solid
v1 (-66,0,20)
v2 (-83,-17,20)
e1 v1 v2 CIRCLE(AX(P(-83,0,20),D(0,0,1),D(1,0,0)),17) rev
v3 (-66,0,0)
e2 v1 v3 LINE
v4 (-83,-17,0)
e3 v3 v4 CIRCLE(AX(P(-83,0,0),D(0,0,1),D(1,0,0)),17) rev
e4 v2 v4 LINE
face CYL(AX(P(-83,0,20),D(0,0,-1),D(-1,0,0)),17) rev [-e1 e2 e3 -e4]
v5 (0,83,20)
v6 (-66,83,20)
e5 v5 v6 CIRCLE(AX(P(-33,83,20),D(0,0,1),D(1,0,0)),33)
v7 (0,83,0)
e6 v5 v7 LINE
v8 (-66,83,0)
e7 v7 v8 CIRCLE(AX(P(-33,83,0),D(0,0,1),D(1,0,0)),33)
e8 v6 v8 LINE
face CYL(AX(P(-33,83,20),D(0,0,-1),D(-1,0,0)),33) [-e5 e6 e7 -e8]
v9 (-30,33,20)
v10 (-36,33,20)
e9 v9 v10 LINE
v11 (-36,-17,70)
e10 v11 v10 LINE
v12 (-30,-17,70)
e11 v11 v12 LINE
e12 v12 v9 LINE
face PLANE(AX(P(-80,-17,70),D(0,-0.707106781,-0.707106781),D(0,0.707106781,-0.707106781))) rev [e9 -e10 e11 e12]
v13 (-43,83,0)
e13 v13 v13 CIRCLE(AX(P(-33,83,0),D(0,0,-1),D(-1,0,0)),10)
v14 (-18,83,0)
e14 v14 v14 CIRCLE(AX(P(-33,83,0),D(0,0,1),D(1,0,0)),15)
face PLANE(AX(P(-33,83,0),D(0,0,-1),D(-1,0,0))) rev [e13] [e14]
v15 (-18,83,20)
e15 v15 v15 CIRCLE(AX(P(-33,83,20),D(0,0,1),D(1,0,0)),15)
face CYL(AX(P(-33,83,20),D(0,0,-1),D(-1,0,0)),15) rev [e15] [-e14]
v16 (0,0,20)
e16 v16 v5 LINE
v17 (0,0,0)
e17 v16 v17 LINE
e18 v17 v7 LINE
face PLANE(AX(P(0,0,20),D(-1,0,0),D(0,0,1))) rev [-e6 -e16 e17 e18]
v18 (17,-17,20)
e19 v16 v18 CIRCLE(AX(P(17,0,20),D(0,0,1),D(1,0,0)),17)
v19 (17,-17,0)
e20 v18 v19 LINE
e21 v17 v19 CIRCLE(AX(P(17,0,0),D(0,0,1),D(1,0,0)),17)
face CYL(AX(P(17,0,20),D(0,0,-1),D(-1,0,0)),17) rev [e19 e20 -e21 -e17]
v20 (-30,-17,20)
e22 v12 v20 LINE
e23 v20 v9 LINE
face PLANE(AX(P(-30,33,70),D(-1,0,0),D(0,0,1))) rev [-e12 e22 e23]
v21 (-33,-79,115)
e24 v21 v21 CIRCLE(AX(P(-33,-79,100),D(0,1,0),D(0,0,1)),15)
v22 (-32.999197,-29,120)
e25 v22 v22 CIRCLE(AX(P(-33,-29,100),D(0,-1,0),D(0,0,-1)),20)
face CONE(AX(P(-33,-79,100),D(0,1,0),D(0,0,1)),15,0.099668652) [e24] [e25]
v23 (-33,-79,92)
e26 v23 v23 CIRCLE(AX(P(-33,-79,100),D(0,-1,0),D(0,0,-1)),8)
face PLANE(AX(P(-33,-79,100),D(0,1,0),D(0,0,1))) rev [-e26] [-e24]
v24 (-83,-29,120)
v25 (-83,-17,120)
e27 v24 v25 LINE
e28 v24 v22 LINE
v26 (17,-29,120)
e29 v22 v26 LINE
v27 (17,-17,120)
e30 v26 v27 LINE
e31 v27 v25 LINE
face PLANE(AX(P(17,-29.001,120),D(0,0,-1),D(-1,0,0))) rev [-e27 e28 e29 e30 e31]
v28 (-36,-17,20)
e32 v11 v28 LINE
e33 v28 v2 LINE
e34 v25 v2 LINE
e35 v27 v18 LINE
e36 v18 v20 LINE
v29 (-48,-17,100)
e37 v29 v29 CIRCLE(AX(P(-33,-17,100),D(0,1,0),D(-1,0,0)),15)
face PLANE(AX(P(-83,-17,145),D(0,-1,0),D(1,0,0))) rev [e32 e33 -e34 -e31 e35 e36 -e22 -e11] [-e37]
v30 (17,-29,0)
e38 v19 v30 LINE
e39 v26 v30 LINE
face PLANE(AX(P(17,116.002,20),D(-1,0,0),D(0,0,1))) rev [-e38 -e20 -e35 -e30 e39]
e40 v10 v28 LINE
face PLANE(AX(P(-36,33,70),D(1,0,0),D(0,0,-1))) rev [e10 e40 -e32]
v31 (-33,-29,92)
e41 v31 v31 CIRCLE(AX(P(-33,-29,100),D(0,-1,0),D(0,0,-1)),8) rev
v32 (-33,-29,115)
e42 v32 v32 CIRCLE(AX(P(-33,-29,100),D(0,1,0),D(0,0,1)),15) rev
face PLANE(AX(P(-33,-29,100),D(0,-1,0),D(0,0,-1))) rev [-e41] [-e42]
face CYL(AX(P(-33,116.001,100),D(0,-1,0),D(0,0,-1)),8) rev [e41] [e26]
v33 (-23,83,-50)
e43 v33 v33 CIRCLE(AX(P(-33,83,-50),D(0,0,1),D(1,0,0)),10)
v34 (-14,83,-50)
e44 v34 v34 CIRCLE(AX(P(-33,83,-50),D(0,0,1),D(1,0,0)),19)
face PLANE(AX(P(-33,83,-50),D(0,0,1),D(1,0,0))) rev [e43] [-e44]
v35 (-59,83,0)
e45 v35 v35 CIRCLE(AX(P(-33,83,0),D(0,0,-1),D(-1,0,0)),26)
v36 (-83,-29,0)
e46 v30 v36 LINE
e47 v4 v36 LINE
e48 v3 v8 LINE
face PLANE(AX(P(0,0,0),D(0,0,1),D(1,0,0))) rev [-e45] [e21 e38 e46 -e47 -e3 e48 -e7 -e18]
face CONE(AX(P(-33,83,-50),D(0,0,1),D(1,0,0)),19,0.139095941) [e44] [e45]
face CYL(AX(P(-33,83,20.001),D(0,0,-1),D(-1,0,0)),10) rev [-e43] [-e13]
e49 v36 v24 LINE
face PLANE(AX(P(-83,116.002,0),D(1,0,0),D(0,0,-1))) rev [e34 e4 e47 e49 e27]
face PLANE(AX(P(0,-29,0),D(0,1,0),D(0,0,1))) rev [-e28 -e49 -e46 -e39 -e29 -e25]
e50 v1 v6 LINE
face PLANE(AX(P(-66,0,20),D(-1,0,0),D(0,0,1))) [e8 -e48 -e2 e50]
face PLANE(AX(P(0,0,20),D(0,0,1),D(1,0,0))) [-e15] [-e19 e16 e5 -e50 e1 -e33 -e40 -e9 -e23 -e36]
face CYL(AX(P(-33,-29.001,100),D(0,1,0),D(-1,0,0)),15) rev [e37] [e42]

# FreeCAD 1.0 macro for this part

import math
import FreeCAD as App
import Part
import Sketcher
from FreeCAD import Vector


def add_polygon(sketch, points):
    """Adds a closed chain of lines whose ends are joined by coincident constraints."""
    first, n = sketch.GeometryCount, len(points)
    for a, b in zip(points, points[1:] + points[:1]):
        sketch.addGeometry(Part.LineSegment(App.Vector(*a, 0), App.Vector(*b, 0)), False)
    for i in range(n):
        sketch.addConstraint(Sketcher.Constraint("Coincident", first + i, 2, first + (i + 1) % n, 1))

doc = App.newDocument("Part")
params = doc.addObject("Spreadsheet::Sheet", "Params")
for row, (alias, value) in enumerate([
    ("sketch1_diameter", "30 mm"),
    ("sketch1_radius", "33 mm"),
    ("sketch1_radius2", "17 mm"),
    ("sketch1_height", "83 mm"),
    ("pad1_length", "20 mm"),
    ("sketch2_diameter", "52 mm"),
    ("sketch3_diameter", "38 mm"),
    ("sketch4_diameter", "20 mm"),
    ("sketch5_width", "100 mm"),
    ("sketch5_height", "20 mm"),
    ("sketch6_width", "100 mm"),
    ("sketch6_height", "12 mm"),
    ("pad3_length", "125 mm"),
    ("sketch7_width", "6 mm"),
    ("sketch7_height", "50 mm"),
    ("pad4_length", "50 mm"),
    ("sketch8_width", "50 mm"),
    ("pocket2_length", "50 mm"),
    ("sketch9_diameter", "30 mm"),
    ("sketch10_width", "100 mm"),
    ("sketch10_height", "25 mm"),
    ("sketch11_diameter", "40 mm"),
    ("sketch12_diameter", "30 mm"),
    ("sketch13_diameter", "16 mm"),
], start=1):
    params.set(f"A{row}", alias)
    params.set(f"B{row}", "=" + value)
    params.setAlias(f"B{row}", alias)

body = doc.addObject("PartDesign::Body", "Body")

# Sketch on XY plane
sketch1 = doc.addObject("Sketcher::SketchObject", "Sketch")
body.addObject(sketch1)
sketch1.AttachmentSupport = (doc.XY_Plane, [""])
sketch1.MapMode = "FlatFace"
sketch1.addGeometry(Part.LineSegment(Vector(0, 0, 0), Vector(0, 83, 0)), False)
sketch1.addGeometry(Part.ArcOfCircle(Part.Circle(Vector(-33, 83, 0), Vector(0, 0, 1), 33), math.radians(0), math.radians(180)), False)
sketch1.addGeometry(Part.LineSegment(Vector(-66, 83, 0), Vector(-66, 0, 0)), False)
sketch1.addGeometry(Part.ArcOfCircle(Part.Circle(Vector(-83, 0, 0), Vector(0, 0, 1), 17), math.radians(-90), math.radians(0)), False)
sketch1.addGeometry(Part.LineSegment(Vector(-83, -17, 0), Vector(17, -17, 0)), False)
sketch1.addGeometry(Part.ArcOfCircle(Part.Circle(Vector(17, 0, 0), Vector(0, 0, 1), 17), math.radians(-180), math.radians(-90)), False)
sketch1.addGeometry(Part.Circle(Vector(-33, 83, 0), Vector(0, 0, 1), 15), False)
sketch1.addConstraint(Sketcher.Constraint("Tangent", 0, 2, 1, 1))
sketch1.addConstraint(Sketcher.Constraint("Tangent", 1, 2, 2, 1))
sketch1.addConstraint(Sketcher.Constraint("Tangent", 2, 2, 3, 2))
sketch1.addConstraint(Sketcher.Constraint("Tangent", 3, 1, 4, 1))
sketch1.addConstraint(Sketcher.Constraint("Tangent", 4, 2, 5, 2))
sketch1.addConstraint(Sketcher.Constraint("Tangent", 5, 1, 0, 1))
sketch1.addConstraint(Sketcher.Constraint("Vertical", 0))
sketch1.addConstraint(Sketcher.Constraint("Vertical", 2))
sketch1.addConstraint(Sketcher.Constraint("Horizontal", 4))
sketch1.addConstraint(Sketcher.Constraint("Coincident", 5, 1, -1, 1))
sketch1.addConstraint(Sketcher.Constraint("Coincident", 6, 3, 1, 3))
sketch1.addConstraint(Sketcher.Constraint("Equal", 3, 5))
sketch1.addConstraint(Sketcher.Constraint("Diameter", 6, 30.0))
sketch1.addConstraint(Sketcher.Constraint("Radius", 1, 33.0))
sketch1.addConstraint(Sketcher.Constraint("Radius", 3, 17.0))
sketch1.addConstraint(Sketcher.Constraint("DistanceY", 0, 1, 0, 2, 83.0))
sketch1.setExpression("Constraints[12]", "Params.sketch1_diameter")
sketch1.setExpression("Constraints[13]", "Params.sketch1_radius")
sketch1.setExpression("Constraints[14]", "Params.sketch1_radius2")
sketch1.setExpression("Constraints[15]", "Params.sketch1_height")
pad1 = doc.addObject("PartDesign::Pad", "Pad")
body.addObject(pad1)
pad1.Profile = sketch1
pad1.setExpression("Length", "Params.pad1_length")

# Sketch on XY plane
sketch2 = doc.addObject("Sketcher::SketchObject", "Sketch001")
body.addObject(sketch2)
sketch2.AttachmentSupport = (doc.XY_Plane, [""])
sketch2.MapMode = "FlatFace"
sketch2.addGeometry(Part.Circle(Vector(-33, 83, 0), Vector(0, 0, 1), 26), False)
sketch2.addConstraint(Sketcher.Constraint("Diameter", 0, 52.0))
sketch2.addConstraint(Sketcher.Constraint("DistanceX", 0, 3, -1, 1, 33.0))
sketch2.addConstraint(Sketcher.Constraint("DistanceY", -1, 1, 0, 3, 83.0))
sketch2.setExpression("Constraints[0]", "Params.sketch2_diameter")

# Sketch on XY plane
sketch3 = doc.addObject("Sketcher::SketchObject", "Sketch002")
body.addObject(sketch3)
sketch3.AttachmentSupport = (doc.XY_Plane, [""])
sketch3.MapMode = "FlatFace"
sketch3.AttachmentOffset = App.Placement(Vector(0, 0, -50), App.Rotation())
sketch3.addGeometry(Part.Circle(Vector(-33, 83, 0), Vector(0, 0, 1), 19), False)
sketch3.addConstraint(Sketcher.Constraint("Diameter", 0, 38.0))
sketch3.addConstraint(Sketcher.Constraint("DistanceX", 0, 3, -1, 1, 33.0))
sketch3.addConstraint(Sketcher.Constraint("DistanceY", -1, 1, 0, 3, 83.0))
sketch3.setExpression("Constraints[0]", "Params.sketch3_diameter")

additiveloft = doc.addObject("PartDesign::AdditiveLoft", "AdditiveLoft")
body.addObject(additiveloft)
additiveloft.Profile = sketch2
additiveloft.Sections = [sketch3]

# Sketch on XY plane
sketch4 = doc.addObject("Sketcher::SketchObject", "Sketch003")
body.addObject(sketch4)
sketch4.AttachmentSupport = (doc.XY_Plane, [""])
sketch4.MapMode = "FlatFace"
sketch4.AttachmentOffset = App.Placement(Vector(0, 0, -50), App.Rotation())
sketch4.addGeometry(Part.Circle(Vector(-33, 83, 0), Vector(0, 0, 1), 10), False)
sketch4.addConstraint(Sketcher.Constraint("Diameter", 0, 20.0))
sketch4.addConstraint(Sketcher.Constraint("DistanceX", 0, 3, -1, 1, 33.0))
sketch4.addConstraint(Sketcher.Constraint("DistanceY", -1, 1, 0, 3, 83.0))
sketch4.setExpression("Constraints[0]", "Params.sketch4_diameter")
pocket1 = doc.addObject("PartDesign::Pocket", "Pocket")
body.addObject(pocket1)
pocket1.Profile = sketch4
pocket1.Type = "UpToFirst"
pocket1.Reversed = True

# Sketch on XZ plane
sketch5 = doc.addObject("Sketcher::SketchObject", "Sketch004")
body.addObject(sketch5)
sketch5.AttachmentSupport = (doc.XZ_Plane, [""])
sketch5.MapMode = "FlatFace"
sketch5.AttachmentOffset = App.Placement(Vector(0, 0, 29), App.Rotation())
add_polygon(sketch5, [(-83, 0), (-83, 20), (17, 20), (17, 0)])  # lines 0-3
sketch5.addConstraint(Sketcher.Constraint("Vertical", 0))
sketch5.addConstraint(Sketcher.Constraint("Horizontal", 1))
sketch5.addConstraint(Sketcher.Constraint("Vertical", 2))
sketch5.addConstraint(Sketcher.Constraint("Horizontal", 3))
sketch5.addConstraint(Sketcher.Constraint("PointOnObject", 2, 2, -1))
sketch5.addConstraint(Sketcher.Constraint("DistanceX", 1, 1, 1, 2, 100.0))
sketch5.addConstraint(Sketcher.Constraint("DistanceY", 0, 1, 0, 2, 20.0))
sketch5.addConstraint(Sketcher.Constraint("DistanceX", 0, 2, -1, 1, 83.0))
sketch5.setExpression("Constraints[9]", "Params.sketch5_width")
sketch5.setExpression("Constraints[10]", "Params.sketch5_height")
pad2 = doc.addObject("PartDesign::Pad", "Pad001")
body.addObject(pad2)
pad2.Profile = sketch5
pad2.Type = "UpToFirst"
pad2.Reversed = True

# Sketch on XY plane
sketch6 = doc.addObject("Sketcher::SketchObject", "Sketch005")
body.addObject(sketch6)
sketch6.AttachmentSupport = (doc.XY_Plane, [""])
sketch6.MapMode = "FlatFace"
sketch6.AttachmentOffset = App.Placement(Vector(0, 0, 20), App.Rotation())
add_polygon(sketch6, [(-83, -17), (-83, -29), (17, -29), (17, -17)])  # lines 0-3
sketch6.addConstraint(Sketcher.Constraint("Vertical", 0))
sketch6.addConstraint(Sketcher.Constraint("Horizontal", 1))
sketch6.addConstraint(Sketcher.Constraint("Vertical", 2))
sketch6.addConstraint(Sketcher.Constraint("Horizontal", 3))
sketch6.addConstraint(Sketcher.Constraint("DistanceX", 1, 1, 1, 2, 100.0))
sketch6.addConstraint(Sketcher.Constraint("DistanceY", 0, 2, 0, 1, 12.0))
sketch6.addConstraint(Sketcher.Constraint("DistanceX", 0, 2, -1, 1, 83.0))
sketch6.addConstraint(Sketcher.Constraint("DistanceY", 0, 2, -1, 1, 29.0))
sketch6.setExpression("Constraints[8]", "Params.sketch6_width")
sketch6.setExpression("Constraints[9]", "Params.sketch6_height")
pad3 = doc.addObject("PartDesign::Pad", "Pad002")
body.addObject(pad3)
pad3.Profile = sketch6
pad3.setExpression("Length", "Params.pad3_length")

# Sketch on XY plane
sketch7 = doc.addObject("Sketcher::SketchObject", "Sketch006")
body.addObject(sketch7)
sketch7.AttachmentSupport = (doc.XY_Plane, [""])
sketch7.MapMode = "FlatFace"
sketch7.AttachmentOffset = App.Placement(Vector(0, 0, 20), App.Rotation())
add_polygon(sketch7, [(-36, 33), (-36, -17), (-30, -17), (-30, 33)])  # lines 0-3
sketch7.addConstraint(Sketcher.Constraint("Vertical", 0))
sketch7.addConstraint(Sketcher.Constraint("Horizontal", 1))
sketch7.addConstraint(Sketcher.Constraint("Vertical", 2))
sketch7.addConstraint(Sketcher.Constraint("Horizontal", 3))
sketch7.addConstraint(Sketcher.Constraint("DistanceX", 1, 1, 1, 2, 6.0))
sketch7.addConstraint(Sketcher.Constraint("DistanceY", 0, 2, 0, 1, 50.0))
sketch7.addConstraint(Sketcher.Constraint("DistanceX", 0, 2, -1, 1, 36.0))
sketch7.addConstraint(Sketcher.Constraint("DistanceY", 0, 2, -1, 1, 17.0))
sketch7.setExpression("Constraints[8]", "Params.sketch7_width")
sketch7.setExpression("Constraints[9]", "Params.sketch7_height")
pad4 = doc.addObject("PartDesign::Pad", "Pad003")
body.addObject(pad4)
pad4.Profile = sketch7
pad4.setExpression("Length", "Params.pad4_length")

# Sketch on YZ plane
sketch8 = doc.addObject("Sketcher::SketchObject", "Sketch007")
body.addObject(sketch8)
sketch8.AttachmentSupport = (doc.YZ_Plane, [""])
sketch8.MapMode = "FlatFace"
sketch8.AttachmentOffset = App.Placement(Vector(0, 0, -30), App.Rotation())
add_polygon(sketch8, [(-17, 70), (33, 20), (33, 70)])  # lines 0-2
sketch8.addConstraint(Sketcher.Constraint("Vertical", 1))
sketch8.addConstraint(Sketcher.Constraint("Horizontal", 2))
sketch8.addConstraint(Sketcher.Constraint("Equal", 2, 1))
sketch8.addConstraint(Sketcher.Constraint("DistanceX", 2, 2, 2, 1, 50.0))
sketch8.addConstraint(Sketcher.Constraint("DistanceX", -1, 1, 0, 2, 33.0))
sketch8.addConstraint(Sketcher.Constraint("DistanceY", -1, 1, 0, 2, 20.0))
sketch8.setExpression("Constraints[6]", "Params.sketch8_width")
pocket2 = doc.addObject("PartDesign::Pocket", "Pocket001")
body.addObject(pocket2)
pocket2.Profile = sketch8
pocket2.setExpression("Length", "Params.pocket2_length")

# Sketch on XZ plane
sketch9 = doc.addObject("Sketcher::SketchObject", "Sketch008")
body.addObject(sketch9)
sketch9.AttachmentSupport = (doc.XZ_Plane, [""])
sketch9.MapMode = "FlatFace"
sketch9.AttachmentOffset = App.Placement(Vector(0, 0, 17), App.Rotation())
sketch9.addGeometry(Part.Circle(Vector(-33, 100, 0), Vector(0, 0, 1), 15), False)
sketch9.addConstraint(Sketcher.Constraint("Diameter", 0, 30.0))
sketch9.addConstraint(Sketcher.Constraint("DistanceX", 0, 3, -1, 1, 33.0))
sketch9.addConstraint(Sketcher.Constraint("DistanceY", -1, 1, 0, 3, 100.0))
sketch9.setExpression("Constraints[0]", "Params.sketch9_diameter")
pocket3 = doc.addObject("PartDesign::Pocket", "Pocket002")
body.addObject(pocket3)
pocket3.Profile = sketch9
pocket3.Type = "UpToFirst"
pocket3.Reversed = True

# Sketch on XZ plane
sketch10 = doc.addObject("Sketcher::SketchObject", "Sketch009")
body.addObject(sketch10)
sketch10.AttachmentSupport = (doc.XZ_Plane, [""])
sketch10.MapMode = "FlatFace"
sketch10.AttachmentOffset = App.Placement(Vector(0, 0, 17), App.Rotation())
add_polygon(sketch10, [(-83, 120), (-83, 145), (17, 145), (17, 120)])  # lines 0-3
sketch10.addConstraint(Sketcher.Constraint("Vertical", 0))
sketch10.addConstraint(Sketcher.Constraint("Horizontal", 1))
sketch10.addConstraint(Sketcher.Constraint("Vertical", 2))
sketch10.addConstraint(Sketcher.Constraint("Horizontal", 3))
sketch10.addConstraint(Sketcher.Constraint("DistanceX", 1, 1, 1, 2, 100.0))
sketch10.addConstraint(Sketcher.Constraint("DistanceY", 0, 1, 0, 2, 25.0))
sketch10.addConstraint(Sketcher.Constraint("DistanceX", 0, 2, -1, 1, 83.0))
sketch10.addConstraint(Sketcher.Constraint("DistanceY", -1, 1, 0, 2, 145.0))
sketch10.setExpression("Constraints[8]", "Params.sketch10_width")
sketch10.setExpression("Constraints[9]", "Params.sketch10_height")
pocket4 = doc.addObject("PartDesign::Pocket", "Pocket003")
body.addObject(pocket4)
pocket4.Profile = sketch10
pocket4.Type = "UpToFirst"
pocket4.Reversed = True

# Sketch on XZ plane
sketch11 = doc.addObject("Sketcher::SketchObject", "Sketch010")
body.addObject(sketch11)
sketch11.AttachmentSupport = (doc.XZ_Plane, [""])
sketch11.MapMode = "FlatFace"
sketch11.AttachmentOffset = App.Placement(Vector(0, 0, 29), App.Rotation())
sketch11.addGeometry(Part.Circle(Vector(-33, 100, 0), Vector(0, 0, 1), 20), False)
sketch11.addConstraint(Sketcher.Constraint("Diameter", 0, 40.0))
sketch11.addConstraint(Sketcher.Constraint("DistanceX", 0, 3, -1, 1, 33.0))
sketch11.addConstraint(Sketcher.Constraint("DistanceY", -1, 1, 0, 3, 100.0))
sketch11.setExpression("Constraints[0]", "Params.sketch11_diameter")

# Sketch on XZ plane
sketch12 = doc.addObject("Sketcher::SketchObject", "Sketch011")
body.addObject(sketch12)
sketch12.AttachmentSupport = (doc.XZ_Plane, [""])
sketch12.MapMode = "FlatFace"
sketch12.AttachmentOffset = App.Placement(Vector(0, 0, 79), App.Rotation())
sketch12.addGeometry(Part.Circle(Vector(-33, 100, 0), Vector(0, 0, 1), 15), False)
sketch12.addConstraint(Sketcher.Constraint("Diameter", 0, 30.0))
sketch12.addConstraint(Sketcher.Constraint("DistanceX", 0, 3, -1, 1, 33.0))
sketch12.addConstraint(Sketcher.Constraint("DistanceY", -1, 1, 0, 3, 100.0))
sketch12.setExpression("Constraints[0]", "Params.sketch12_diameter")

additiveloft2 = doc.addObject("PartDesign::AdditiveLoft", "AdditiveLoft001")
body.addObject(additiveloft2)
additiveloft2.Profile = sketch11
additiveloft2.Sections = [sketch12]

# Sketch on XZ plane
sketch13 = doc.addObject("Sketcher::SketchObject", "Sketch012")
body.addObject(sketch13)
sketch13.AttachmentSupport = (doc.XZ_Plane, [""])
sketch13.MapMode = "FlatFace"
sketch13.AttachmentOffset = App.Placement(Vector(0, 0, 79), App.Rotation())
sketch13.addGeometry(Part.Circle(Vector(-33, 100, 0), Vector(0, 0, 1), 8), False)
sketch13.addConstraint(Sketcher.Constraint("Diameter", 0, 16.0))
sketch13.addConstraint(Sketcher.Constraint("DistanceX", 0, 3, -1, 1, 33.0))
sketch13.addConstraint(Sketcher.Constraint("DistanceY", -1, 1, 0, 3, 100.0))
sketch13.setExpression("Constraints[0]", "Params.sketch13_diameter")
pocket5 = doc.addObject("PartDesign::Pocket", "Pocket004")
body.addObject(pocket5)
pocket5.Profile = sketch13
pocket5.Type = "UpToFirst"

doc.recompute()
